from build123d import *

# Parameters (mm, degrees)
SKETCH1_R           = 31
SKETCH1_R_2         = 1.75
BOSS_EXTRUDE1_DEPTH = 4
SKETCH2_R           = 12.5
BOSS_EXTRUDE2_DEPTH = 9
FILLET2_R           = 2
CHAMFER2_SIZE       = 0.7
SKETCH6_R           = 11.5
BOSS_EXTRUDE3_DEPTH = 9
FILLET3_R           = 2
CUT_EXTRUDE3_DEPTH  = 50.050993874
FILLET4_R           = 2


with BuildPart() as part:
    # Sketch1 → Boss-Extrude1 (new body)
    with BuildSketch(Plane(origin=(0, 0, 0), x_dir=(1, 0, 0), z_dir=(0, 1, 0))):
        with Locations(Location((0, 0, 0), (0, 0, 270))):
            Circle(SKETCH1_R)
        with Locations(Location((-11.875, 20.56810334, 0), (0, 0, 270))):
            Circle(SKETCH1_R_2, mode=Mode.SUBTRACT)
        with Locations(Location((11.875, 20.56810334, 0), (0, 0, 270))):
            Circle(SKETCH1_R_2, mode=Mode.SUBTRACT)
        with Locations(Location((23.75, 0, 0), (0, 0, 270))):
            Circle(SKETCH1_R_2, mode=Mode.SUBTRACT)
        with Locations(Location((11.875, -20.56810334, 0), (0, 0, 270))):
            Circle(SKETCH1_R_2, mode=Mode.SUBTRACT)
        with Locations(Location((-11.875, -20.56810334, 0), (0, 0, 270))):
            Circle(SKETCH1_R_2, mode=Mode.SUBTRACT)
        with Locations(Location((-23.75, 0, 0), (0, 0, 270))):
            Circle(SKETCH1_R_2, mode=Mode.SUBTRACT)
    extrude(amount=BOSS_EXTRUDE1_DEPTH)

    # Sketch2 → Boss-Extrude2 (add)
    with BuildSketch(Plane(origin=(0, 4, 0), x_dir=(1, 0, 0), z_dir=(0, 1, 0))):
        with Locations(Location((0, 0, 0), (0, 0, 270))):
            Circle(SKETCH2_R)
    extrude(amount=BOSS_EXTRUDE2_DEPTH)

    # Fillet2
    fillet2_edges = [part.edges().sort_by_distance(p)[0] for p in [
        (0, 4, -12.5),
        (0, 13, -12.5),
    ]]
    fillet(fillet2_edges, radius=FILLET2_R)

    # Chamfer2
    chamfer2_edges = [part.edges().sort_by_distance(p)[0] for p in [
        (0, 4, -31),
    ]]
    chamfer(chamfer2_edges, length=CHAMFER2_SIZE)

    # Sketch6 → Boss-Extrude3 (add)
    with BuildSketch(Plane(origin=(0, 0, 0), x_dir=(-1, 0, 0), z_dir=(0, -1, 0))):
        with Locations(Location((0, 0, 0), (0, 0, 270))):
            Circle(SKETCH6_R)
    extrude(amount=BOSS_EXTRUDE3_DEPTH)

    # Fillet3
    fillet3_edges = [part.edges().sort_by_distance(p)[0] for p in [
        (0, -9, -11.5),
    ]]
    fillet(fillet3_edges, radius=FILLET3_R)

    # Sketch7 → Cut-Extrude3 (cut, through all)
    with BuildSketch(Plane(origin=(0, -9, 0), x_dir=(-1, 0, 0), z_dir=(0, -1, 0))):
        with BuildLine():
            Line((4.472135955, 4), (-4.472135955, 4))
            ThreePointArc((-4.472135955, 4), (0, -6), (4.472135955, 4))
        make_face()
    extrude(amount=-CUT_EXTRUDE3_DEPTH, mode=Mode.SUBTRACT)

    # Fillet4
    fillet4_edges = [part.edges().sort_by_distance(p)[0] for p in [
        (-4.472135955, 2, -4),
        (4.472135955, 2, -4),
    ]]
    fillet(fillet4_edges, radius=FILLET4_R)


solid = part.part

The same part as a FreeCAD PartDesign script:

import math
import FreeCAD as App
import Part
import Sketcher
from FreeCAD import Vector


def edges_at(feature, points):
    """Names of the edges that pass closest to the given points."""
    edges = feature.Shape.Edges
    near = lambda p: min(range(len(edges)), key=lambda i: edges[i].distToShape(Part.Vertex(*p))[0])
    return sorted({f"Edge{near(p) + 1}" for p in points})

doc = App.newDocument("Part")
body = doc.addObject("PartDesign::Body", "Body")

sketch1 = body.newObject("Sketcher::SketchObject", "Sketch")
sketch1.AttachmentSupport = (doc.getObject("XZ_Plane"), [""])
sketch1.MapMode = "FlatFace"
sketch1.addGeometry([
    Part.Circle(Vector(0, 0, 0), Vector(0, 0, 1), 31),
    Part.Circle(Vector(-11.875, -20.568103, 0), Vector(0, 0, 1), 1.75),
    Part.Circle(Vector(-23.75, 0, 0), Vector(0, 0, 1), 1.75),
    Part.Circle(Vector(-11.875, 20.568103, 0), Vector(0, 0, 1), 1.75),
    Part.Circle(Vector(11.875, -20.568103, 0), Vector(0, 0, 1), 1.75),
    Part.Circle(Vector(23.75, 0, 0), Vector(0, 0, 1), 1.75),
    Part.Circle(Vector(11.875, 20.568103, 0), Vector(0, 0, 1), 1.75),
], False)
sketch1.addConstraint([
    Sketcher.Constraint("Coincident", 0, 3, -1, 1),
    Sketcher.Constraint("Equal", 1, 2),
    Sketcher.Constraint("Equal", 2, 3),
    Sketcher.Constraint("Equal", 3, 4),
    Sketcher.Constraint("Equal", 4, 5),
    Sketcher.Constraint("Equal", 5, 6),
    Sketcher.Constraint("Symmetric", 3, 3, 4, 3, -1, 1),
    Sketcher.Constraint("Symmetric", 2, 3, 5, 3, -1, 1),
    Sketcher.Constraint("Symmetric", 1, 3, 6, 3, -1, 1),
    Sketcher.Constraint("Symmetric", 1, 3, 4, 3, -2),
    Sketcher.Constraint("PointOnObject", 2, 3, -1),
    Sketcher.Constraint("Diameter", 0, 62.0),
    Sketcher.Constraint("Diameter", 1, 3.5),
    Sketcher.Constraint("DistanceX", 2, 3, 5, 3, 47.5),
    Sketcher.Constraint("DistanceX", 1, 3, 4, 3, 23.75),
    Sketcher.Constraint("DistanceY", 1, 3, -1, 1, 20.568103),
])
pad1 = body.newObject("PartDesign::Pad", "Pad")
pad1.Profile = sketch1
pad1.Length = 4
pad1.Reversed = True

sketch2 = body.newObject("Sketcher::SketchObject", "Sketch001")
sketch2.AttachmentSupport = (doc.getObject("XZ_Plane"), [""])
sketch2.MapMode = "FlatFace"
sketch2.AttachmentOffset = App.Placement(Vector(0, 0, -4), App.Rotation())
sketch2.addGeometry(Part.Circle(Vector(0, 0, 0), Vector(0, 0, 1), 12.5), False)
sketch2.addConstraint([
    Sketcher.Constraint("Coincident", 0, 3, -1, 1),
    Sketcher.Constraint("Diameter", 0, 25.0),
])
pad2 = body.newObject("PartDesign::Pad", "Pad001")
pad2.Profile = sketch2
pad2.Length = 9
pad2.Reversed = True
doc.recompute()

fillet = body.newObject("PartDesign::Fillet", "Fillet")
fillet.Base = (pad2, edges_at(pad2, [(0, 4, -12.5), (0, 13, -12.5)]))
fillet.Radius = 2
doc.recompute()

chamfer = body.newObject("PartDesign::Chamfer", "Chamfer")
chamfer.Base = (fillet, edges_at(fillet, [(0, 4, -31)]))
chamfer.Size = 0.7

sketch3 = body.newObject("Sketcher::SketchObject", "Sketch002")
sketch3.AttachmentSupport = (doc.getObject("XZ_Plane"), [""])
sketch3.MapMode = "FlatFace"
sketch3.addGeometry(Part.Circle(Vector(0, 0, 0), Vector(0, 0, 1), 11.5), False)
sketch3.addConstraint([
    Sketcher.Constraint("Coincident", 0, 3, -1, 1),
    Sketcher.Constraint("Diameter", 0, 23.0),
])
pad3 = body.newObject("PartDesign::Pad", "Pad002")
pad3.Profile = sketch3
pad3.Length = 9
doc.recompute()

fillet2 = body.newObject("PartDesign::Fillet", "Fillet001")
fillet2.Base = (pad3, edges_at(pad3, [(0, -9, -11.5)]))
fillet2.Radius = 2

sketch4 = body.newObject("Sketcher::SketchObject", "Sketch003")
sketch4.AttachmentSupport = (doc.getObject("XZ_Plane"), [""])
sketch4.MapMode = "FlatFace"
sketch4.AttachmentOffset = App.Placement(Vector(0, 0, 9), App.Rotation())
sketch4.addGeometry([
    Part.LineSegment(Vector(-4.472136, -4, 0), Vector(4.472136, -4, 0)),
    Part.ArcOfCircle(Part.Circle(Vector(0, 0, 0), Vector(0, 0, 1), 6), math.radians(-41.810315), math.radians(221.810315)),
], False)
sketch4.addConstraint([
    Sketcher.Constraint("Coincident", 0, 1, 1, 2),
    Sketcher.Constraint("Coincident", 1, 1, 0, 2),
    Sketcher.Constraint("Horizontal", 0),
    Sketcher.Constraint("Coincident", 1, 3, -1, 1),
    Sketcher.Constraint("Radius", 1, 6.0),
    Sketcher.Constraint("DistanceY", 0, 1, -1, 1, 4.0),
])
pocket1 = body.newObject("PartDesign::Pocket", "Pocket")
pocket1.Profile = sketch4
pocket1.Type = "ThroughAll"
doc.recompute()

fillet3 = body.newObject("PartDesign::Fillet", "Fillet002")
fillet3.Base = (pocket1, edges_at(pocket1, [(-4.472, 2, -4), (4.472, 2, -4)]))
fillet3.Radius = 2

doc.recompute()
